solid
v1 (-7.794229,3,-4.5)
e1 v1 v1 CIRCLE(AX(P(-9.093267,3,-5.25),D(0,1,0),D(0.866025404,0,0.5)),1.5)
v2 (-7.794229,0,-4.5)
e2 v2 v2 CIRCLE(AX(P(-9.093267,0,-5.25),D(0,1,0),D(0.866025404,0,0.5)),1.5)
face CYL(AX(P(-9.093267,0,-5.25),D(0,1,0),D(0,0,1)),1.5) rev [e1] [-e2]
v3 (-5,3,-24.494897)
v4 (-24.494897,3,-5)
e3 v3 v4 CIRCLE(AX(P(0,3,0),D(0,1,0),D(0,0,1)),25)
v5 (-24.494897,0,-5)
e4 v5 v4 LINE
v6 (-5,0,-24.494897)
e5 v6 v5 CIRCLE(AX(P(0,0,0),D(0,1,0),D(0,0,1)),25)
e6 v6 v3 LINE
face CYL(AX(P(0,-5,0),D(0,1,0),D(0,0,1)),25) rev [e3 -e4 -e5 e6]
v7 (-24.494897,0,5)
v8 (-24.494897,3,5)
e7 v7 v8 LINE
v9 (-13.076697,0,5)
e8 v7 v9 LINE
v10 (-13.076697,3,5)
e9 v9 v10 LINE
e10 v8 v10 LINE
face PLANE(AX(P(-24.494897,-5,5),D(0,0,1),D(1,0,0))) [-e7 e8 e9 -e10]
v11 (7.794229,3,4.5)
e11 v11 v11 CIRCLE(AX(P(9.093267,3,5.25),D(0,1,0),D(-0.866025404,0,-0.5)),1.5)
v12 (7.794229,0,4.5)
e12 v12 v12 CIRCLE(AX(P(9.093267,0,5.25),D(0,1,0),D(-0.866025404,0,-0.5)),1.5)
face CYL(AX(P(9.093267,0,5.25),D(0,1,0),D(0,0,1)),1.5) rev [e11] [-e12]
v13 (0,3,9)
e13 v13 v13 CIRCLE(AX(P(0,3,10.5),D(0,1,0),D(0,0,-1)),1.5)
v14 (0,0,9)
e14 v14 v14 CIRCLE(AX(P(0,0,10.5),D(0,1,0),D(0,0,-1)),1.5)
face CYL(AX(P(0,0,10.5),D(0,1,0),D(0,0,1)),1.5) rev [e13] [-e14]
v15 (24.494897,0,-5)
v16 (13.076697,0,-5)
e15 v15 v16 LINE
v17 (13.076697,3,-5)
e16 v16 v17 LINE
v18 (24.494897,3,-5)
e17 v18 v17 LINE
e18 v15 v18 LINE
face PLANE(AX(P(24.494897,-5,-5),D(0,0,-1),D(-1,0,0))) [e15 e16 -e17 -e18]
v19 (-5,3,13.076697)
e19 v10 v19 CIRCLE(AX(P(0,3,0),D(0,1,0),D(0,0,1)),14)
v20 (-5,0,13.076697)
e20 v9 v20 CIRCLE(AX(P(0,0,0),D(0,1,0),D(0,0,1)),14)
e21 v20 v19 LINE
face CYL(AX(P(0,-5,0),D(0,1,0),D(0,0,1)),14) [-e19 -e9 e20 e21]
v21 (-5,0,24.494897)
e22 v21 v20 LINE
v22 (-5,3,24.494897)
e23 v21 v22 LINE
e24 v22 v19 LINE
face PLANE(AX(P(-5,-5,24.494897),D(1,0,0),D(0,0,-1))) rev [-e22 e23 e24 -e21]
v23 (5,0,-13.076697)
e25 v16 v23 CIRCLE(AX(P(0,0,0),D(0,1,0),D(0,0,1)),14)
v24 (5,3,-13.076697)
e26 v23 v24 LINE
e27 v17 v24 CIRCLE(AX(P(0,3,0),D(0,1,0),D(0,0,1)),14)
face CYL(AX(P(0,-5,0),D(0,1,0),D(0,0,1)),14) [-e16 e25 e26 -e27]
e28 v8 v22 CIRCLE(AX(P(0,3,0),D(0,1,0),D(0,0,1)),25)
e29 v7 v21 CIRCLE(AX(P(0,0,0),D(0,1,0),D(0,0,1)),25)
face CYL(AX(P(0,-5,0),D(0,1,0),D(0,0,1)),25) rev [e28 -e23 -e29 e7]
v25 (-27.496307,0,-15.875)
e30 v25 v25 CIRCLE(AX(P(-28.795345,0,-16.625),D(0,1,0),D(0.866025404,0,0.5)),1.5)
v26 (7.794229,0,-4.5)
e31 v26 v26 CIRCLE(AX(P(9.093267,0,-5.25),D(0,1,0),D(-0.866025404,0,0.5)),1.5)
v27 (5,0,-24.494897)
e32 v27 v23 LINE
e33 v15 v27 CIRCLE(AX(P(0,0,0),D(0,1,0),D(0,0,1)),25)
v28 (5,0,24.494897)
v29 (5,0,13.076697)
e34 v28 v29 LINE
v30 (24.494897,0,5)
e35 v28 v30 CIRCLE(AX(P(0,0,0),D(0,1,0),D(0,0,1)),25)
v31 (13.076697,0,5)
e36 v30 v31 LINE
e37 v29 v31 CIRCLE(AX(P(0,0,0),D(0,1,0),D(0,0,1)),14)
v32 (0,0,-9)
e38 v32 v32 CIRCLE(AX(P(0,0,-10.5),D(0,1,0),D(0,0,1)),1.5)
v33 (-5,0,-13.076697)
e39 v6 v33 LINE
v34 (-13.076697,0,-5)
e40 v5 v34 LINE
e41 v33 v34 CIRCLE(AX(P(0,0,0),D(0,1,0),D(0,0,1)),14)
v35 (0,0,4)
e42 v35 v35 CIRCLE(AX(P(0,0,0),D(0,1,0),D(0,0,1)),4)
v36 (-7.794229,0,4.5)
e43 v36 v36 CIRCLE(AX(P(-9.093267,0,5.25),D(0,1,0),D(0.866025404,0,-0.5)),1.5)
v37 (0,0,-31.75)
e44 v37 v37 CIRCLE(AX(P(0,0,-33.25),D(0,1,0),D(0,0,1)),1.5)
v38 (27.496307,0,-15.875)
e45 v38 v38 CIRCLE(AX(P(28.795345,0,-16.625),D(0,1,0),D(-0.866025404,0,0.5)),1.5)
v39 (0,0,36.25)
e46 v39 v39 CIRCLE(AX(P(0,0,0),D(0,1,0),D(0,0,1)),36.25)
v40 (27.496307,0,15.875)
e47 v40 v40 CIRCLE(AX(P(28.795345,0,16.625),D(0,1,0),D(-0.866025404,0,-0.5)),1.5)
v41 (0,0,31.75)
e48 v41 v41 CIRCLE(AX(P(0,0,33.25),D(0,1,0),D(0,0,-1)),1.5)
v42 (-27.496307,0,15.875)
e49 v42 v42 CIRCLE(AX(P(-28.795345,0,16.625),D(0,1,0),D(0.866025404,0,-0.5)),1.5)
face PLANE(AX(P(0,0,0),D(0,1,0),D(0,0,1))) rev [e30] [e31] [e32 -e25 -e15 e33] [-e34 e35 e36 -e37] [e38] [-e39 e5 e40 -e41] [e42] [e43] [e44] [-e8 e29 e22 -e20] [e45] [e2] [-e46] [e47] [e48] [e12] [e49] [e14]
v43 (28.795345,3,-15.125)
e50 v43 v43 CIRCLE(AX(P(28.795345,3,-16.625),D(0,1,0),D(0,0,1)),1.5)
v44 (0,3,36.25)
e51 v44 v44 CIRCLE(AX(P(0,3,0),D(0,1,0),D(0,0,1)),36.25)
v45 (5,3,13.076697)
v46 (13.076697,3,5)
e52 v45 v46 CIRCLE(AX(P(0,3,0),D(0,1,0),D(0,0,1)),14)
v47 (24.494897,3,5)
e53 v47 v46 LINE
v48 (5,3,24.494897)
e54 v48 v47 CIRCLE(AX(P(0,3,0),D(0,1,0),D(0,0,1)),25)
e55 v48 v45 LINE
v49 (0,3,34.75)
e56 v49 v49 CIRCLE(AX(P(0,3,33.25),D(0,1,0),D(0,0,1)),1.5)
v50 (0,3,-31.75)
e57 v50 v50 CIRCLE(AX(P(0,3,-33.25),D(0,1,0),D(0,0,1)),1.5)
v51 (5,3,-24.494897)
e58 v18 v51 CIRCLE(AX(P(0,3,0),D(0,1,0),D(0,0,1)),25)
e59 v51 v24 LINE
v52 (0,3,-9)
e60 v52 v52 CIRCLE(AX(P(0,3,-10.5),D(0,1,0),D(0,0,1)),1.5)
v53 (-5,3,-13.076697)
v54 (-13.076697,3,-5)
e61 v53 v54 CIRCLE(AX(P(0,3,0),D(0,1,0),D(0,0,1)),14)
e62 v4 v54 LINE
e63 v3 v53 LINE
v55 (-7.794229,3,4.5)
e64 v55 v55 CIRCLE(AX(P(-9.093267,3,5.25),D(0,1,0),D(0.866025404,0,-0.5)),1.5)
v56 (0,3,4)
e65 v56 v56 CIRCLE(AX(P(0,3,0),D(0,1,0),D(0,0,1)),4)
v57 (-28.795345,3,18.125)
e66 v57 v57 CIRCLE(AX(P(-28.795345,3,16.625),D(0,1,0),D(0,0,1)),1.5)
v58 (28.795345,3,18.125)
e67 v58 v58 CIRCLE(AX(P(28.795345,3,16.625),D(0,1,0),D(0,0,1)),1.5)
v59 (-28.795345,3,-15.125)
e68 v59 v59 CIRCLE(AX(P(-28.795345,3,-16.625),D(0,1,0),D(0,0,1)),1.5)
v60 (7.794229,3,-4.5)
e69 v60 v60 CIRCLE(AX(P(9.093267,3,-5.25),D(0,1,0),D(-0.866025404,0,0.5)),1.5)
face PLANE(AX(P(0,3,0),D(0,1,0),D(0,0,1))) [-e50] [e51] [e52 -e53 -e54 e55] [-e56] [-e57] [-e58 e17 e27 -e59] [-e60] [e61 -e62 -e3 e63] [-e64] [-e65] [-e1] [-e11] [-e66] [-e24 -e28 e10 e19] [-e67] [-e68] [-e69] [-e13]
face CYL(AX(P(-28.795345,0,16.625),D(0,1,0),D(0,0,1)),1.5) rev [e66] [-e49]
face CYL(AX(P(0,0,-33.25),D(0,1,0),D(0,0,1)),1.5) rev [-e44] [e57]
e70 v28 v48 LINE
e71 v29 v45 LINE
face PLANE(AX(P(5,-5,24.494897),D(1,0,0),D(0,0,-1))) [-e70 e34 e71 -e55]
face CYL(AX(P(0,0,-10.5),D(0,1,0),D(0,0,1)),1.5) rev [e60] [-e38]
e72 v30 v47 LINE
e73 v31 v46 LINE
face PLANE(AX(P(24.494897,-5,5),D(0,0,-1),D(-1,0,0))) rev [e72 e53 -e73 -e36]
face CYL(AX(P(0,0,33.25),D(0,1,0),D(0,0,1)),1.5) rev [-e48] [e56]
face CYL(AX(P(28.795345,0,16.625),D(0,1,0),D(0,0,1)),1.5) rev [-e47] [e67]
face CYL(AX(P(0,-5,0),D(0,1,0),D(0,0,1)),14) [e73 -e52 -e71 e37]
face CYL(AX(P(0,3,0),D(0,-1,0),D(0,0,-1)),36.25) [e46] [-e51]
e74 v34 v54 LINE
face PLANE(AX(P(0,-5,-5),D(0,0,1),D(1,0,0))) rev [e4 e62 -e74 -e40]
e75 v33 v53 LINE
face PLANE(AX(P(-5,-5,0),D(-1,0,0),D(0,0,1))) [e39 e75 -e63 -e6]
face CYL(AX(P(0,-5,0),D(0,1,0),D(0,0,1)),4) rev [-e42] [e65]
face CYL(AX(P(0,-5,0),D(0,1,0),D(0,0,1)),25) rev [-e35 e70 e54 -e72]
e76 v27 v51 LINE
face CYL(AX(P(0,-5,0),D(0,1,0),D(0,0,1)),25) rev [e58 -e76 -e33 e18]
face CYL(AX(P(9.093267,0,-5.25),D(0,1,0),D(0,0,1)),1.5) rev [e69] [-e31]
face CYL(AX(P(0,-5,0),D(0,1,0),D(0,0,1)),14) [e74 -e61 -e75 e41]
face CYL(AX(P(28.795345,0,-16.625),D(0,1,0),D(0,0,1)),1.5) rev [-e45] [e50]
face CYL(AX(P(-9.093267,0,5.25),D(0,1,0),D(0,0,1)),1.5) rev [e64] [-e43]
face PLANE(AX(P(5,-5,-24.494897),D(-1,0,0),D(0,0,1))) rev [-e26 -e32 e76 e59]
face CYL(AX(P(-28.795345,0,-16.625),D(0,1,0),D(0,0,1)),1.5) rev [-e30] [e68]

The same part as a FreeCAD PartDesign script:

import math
import FreeCAD as App
import Part
import Sketcher

V = App.Vector

doc = App.newDocument("Part")
body = doc.addObject("PartDesign::Body", "Body")

# Sketch on XZ plane
sketch1 = body.newObject("Sketcher::SketchObject", "Sketch")
sketch1.AttachmentSupport = (doc.getObject("XZ_Plane"), [""])
sketch1.MapMode = "FlatFace"
sketch1.addGeometry(Part.Circle(V(0, 0, 0), V(0, 0, 1), 36), False)
sketch1.addConstraint(Sketcher.Constraint("Coincident", 0, 3, -1, 1))
sketch1.addConstraint(Sketcher.Constraint("Diameter", 0, 72.5))
pad1 = body.newObject("PartDesign::Pad", "Pad")
pad1.Profile = sketch1
pad1.Length = 3
pad1.Reversed = True

# Sketch on XZ plane
sketch2 = body.newObject("Sketcher::SketchObject", "Sketch001")
sketch2.AttachmentSupport = (doc.getObject("XZ_Plane"), [""])
sketch2.MapMode = "FlatFace"
sketch2.AttachmentOffset = App.Placement(V(0, 0, -3), App.Rotation())
sketch2.addGeometry(Part.Circle(V(0, -33.2, 0), V(0, 0, 1), 1.5), False)
sketch2.addConstraint(Sketcher.Constraint("PointOnObject", 0, 3, -2))
sketch2.addConstraint(Sketcher.Constraint("Diameter", 0, 3.0))
sketch2.addConstraint(Sketcher.Constraint("DistanceY", 0, 3, -1, 1, 33.25))
pocket1 = body.newObject("PartDesign::Pocket", "Pocket")
pocket1.Profile = sketch2
pocket1.Length = 104.705891
pocket1.Midplane = True

# Sketch on XZ plane
sketch3 = body.newObject("Sketcher::SketchObject", "Sketch002")
sketch3.AttachmentSupport = (doc.getObject("XZ_Plane"), [""])
sketch3.MapMode = "FlatFace"
sketch3.AttachmentOffset = App.Placement(V(0, 0, -3), App.Rotation())
sketch3.addGeometry(Part.Circle(V(0, 0, 0), V(0, 0, 1), 4), False)
sketch3.addGeometry(Part.LineSegment(V(-5, -13.1, 0), V(-5, -24.5, 0)), False)
sketch3.addGeometry(Part.ArcOfCircle(Part.Circle(V(0, 0, 0), V(0, 0, 1), 25), math.radians(-168), math.radians(-102)), False)
sketch3.addGeometry(Part.LineSegment(V(-24.5, -5, 0), V(-13.1, -5, 0)), False)
sketch3.addGeometry(Part.ArcOfCircle(Part.Circle(V(0, 0, 0), V(0, 0, 1), 14), math.radians(-159), math.radians(-111)), False)
sketch3.addGeometry(Part.LineSegment(V(5, -24.5, 0), V(5, -13.1, 0)), False)
sketch3.addGeometry(Part.ArcOfCircle(Part.Circle(V(0, 0, 0), V(0, 0, 1), 14), math.radians(-69), math.radians(-21)), False)
sketch3.addGeometry(Part.LineSegment(V(13.1, -5, 0), V(24.5, -5, 0)), False)
sketch3.addGeometry(Part.ArcOfCircle(Part.Circle(V(0, 0, 0), V(0, 0, 1), 25), math.radians(-78), math.radians(-12)), False)
sketch3.addGeometry(Part.LineSegment(V(24.5, 5, 0), V(13.1, 5, 0)), False)
sketch3.addGeometry(Part.ArcOfCircle(Part.Circle(V(0, 0, 0), V(0, 0, 1), 14), math.radians(21), math.radians(69)), False)
sketch3.addGeometry(Part.LineSegment(V(5, 13.1, 0), V(5, 24.5, 0)), False)
sketch3.addGeometry(Part.ArcOfCircle(Part.Circle(V(0, 0, 0), V(0, 0, 1), 25), math.radians(12), math.radians(78)), False)
sketch3.addGeometry(Part.LineSegment(V(-5, 24.5, 0), V(-5, 13.1, 0)), False)
sketch3.addGeometry(Part.ArcOfCircle(Part.Circle(V(0, 0, 0), V(0, 0, 1), 14), math.radians(111), math.radians(159)), False)
sketch3.addGeometry(Part.LineSegment(V(-13.1, 5, 0), V(-24.5, 5, 0)), False)
sketch3.addGeometry(Part.ArcOfCircle(Part.Circle(V(0, 0, 0), V(0, 0, 1), 25), math.radians(102), math.radians(168)), False)
sketch3.addConstraint(Sketcher.Constraint("Coincident", 1, 2, 2, 2))
sketch3.addConstraint(Sketcher.Constraint("Coincident", 2, 1, 3, 1))
sketch3.addConstraint(Sketcher.Constraint("Coincident", 3, 2, 4, 1))
sketch3.addConstraint(Sketcher.Constraint("Coincident", 4, 2, 1, 1))
sketch3.addConstraint(Sketcher.Constraint("Coincident", 5, 2, 6, 1))
sketch3.addConstraint(Sketcher.Constraint("Coincident", 6, 2, 7, 1))
sketch3.addConstraint(Sketcher.Constraint("Coincident", 7, 2, 8, 2))
sketch3.addConstraint(Sketcher.Constraint("Coincident", 8, 1, 5, 1))
sketch3.addConstraint(Sketcher.Constraint("Coincident", 9, 2, 10, 1))
sketch3.addConstraint(Sketcher.Constraint("Coincident", 10, 2, 11, 1))
sketch3.addConstraint(Sketcher.Constraint("Coincident", 11, 2, 12, 2))
sketch3.addConstraint(Sketcher.Constraint("Coincident", 12, 1, 9, 1))
sketch3.addConstraint(Sketcher.Constraint("Coincident", 13, 2, 14, 1))
sketch3.addConstraint(Sketcher.Constraint("Coincident", 14, 2, 15, 1))
sketch3.addConstraint(Sketcher.Constraint("Coincident", 15, 2, 16, 2))
sketch3.addConstraint(Sketcher.Constraint("Coincident", 16, 1, 13, 1))
sketch3.addConstraint(Sketcher.Constraint("Vertical", 1))
sketch3.addConstraint(Sketcher.Constraint("Horizontal", 3))
sketch3.addConstraint(Sketcher.Constraint("Vertical", 5))
sketch3.addConstraint(Sketcher.Constraint("Horizontal", 7))
sketch3.addConstraint(Sketcher.Constraint("Horizontal", 9))
sketch3.addConstraint(Sketcher.Constraint("Vertical", 11))
sketch3.addConstraint(Sketcher.Constraint("Vertical", 13))
sketch3.addConstraint(Sketcher.Constraint("Horizontal", 15))
sketch3.addConstraint(Sketcher.Constraint("Coincident", 0, 3, -1, 1))
sketch3.addConstraint(Sketcher.Constraint("Coincident", 2, 3, -1, 1))
sketch3.addConstraint(Sketcher.Constraint("Coincident", 4, 3, -1, 1))
sketch3.addConstraint(Sketcher.Constraint("Coincident", 6, 3, -1, 1))
sketch3.addConstraint(Sketcher.Constraint("Coincident", 8, 3, -1, 1))
sketch3.addConstraint(Sketcher.Constraint("Coincident", 10, 3, -1, 1))
sketch3.addConstraint(Sketcher.Constraint("Coincident", 12, 3, -1, 1))
sketch3.addConstraint(Sketcher.Constraint("Coincident", 14, 3, -1, 1))
sketch3.addConstraint(Sketcher.Constraint("Coincident", 16, 3, -1, 1))
sketch3.addConstraint(Sketcher.Constraint("Equal", 4, 6))
sketch3.addConstraint(Sketcher.Constraint("Equal", 2, 8))
sketch3.addConstraint(Sketcher.Constraint("Equal", 6, 10))
sketch3.addConstraint(Sketcher.Constraint("Equal", 8, 12))
sketch3.addConstraint(Sketcher.Constraint("Equal", 10, 14))
sketch3.addConstraint(Sketcher.Constraint("Equal", 12, 16))
sketch3.addConstraint(Sketcher.Constraint("Horizontal", 4, 2, 5, 2))
sketch3.addConstraint(Sketcher.Constraint("Horizontal", 3, 2, 6, 2))
sketch3.addConstraint(Sketcher.Constraint("Horizontal", 10, 2, 13, 2))
sketch3.addConstraint(Sketcher.Constraint("Horizontal", 12, 1, 14, 2))
sketch3.addConstraint(Sketcher.Constraint("Vertical", 6, 2, 9, 2))
sketch3.addConstraint(Sketcher.Constraint("Vertical", 8, 1, 10, 2))
sketch3.addConstraint(Sketcher.Constraint("Equal", 15, 1))
sketch3.addConstraint(Sketcher.Constraint("Diameter", 0, 8.0))
sketch3.addConstraint(Sketcher.Constraint("Radius", 2, 25.0))
sketch3.addConstraint(Sketcher.Constraint("Radius", 4, 14.0))
sketch3.addConstraint(Sketcher.Constraint("DistanceX", 1, 2, -1, 1, 5.0))
pocket2 = body.newObject("PartDesign::Pocket", "Pocket001")
pocket2.Profile = sketch3
pocket2.Length = 8
pocket2.Reversed = True
doc.recompute()

polarpattern = body.newObject("PartDesign::PolarPattern", "PolarPattern")
polarpattern.Originals = [pocket1]
polarpattern.Axis = (doc.getObject("Y_Axis"), [""])
polarpattern.Angle = 360
polarpattern.Occurrences = 6
body.Tip = polarpattern

# Sketch on XZ plane
sketch4 = body.newObject("Sketcher::SketchObject", "Sketch003")
sketch4.AttachmentSupport = (doc.getObject("XZ_Plane"), [""])
sketch4.MapMode = "FlatFace"
sketch4.AttachmentOffset = App.Placement(V(0, 0, -3), App.Rotation())
sketch4.addGeometry(Part.Circle(V(0, -10.5, 0), V(0, 0, 1), 1.5), False)
sketch4.addConstraint(Sketcher.Constraint("PointOnObject", 0, 3, -2))
sketch4.addConstraint(Sketcher.Constraint("Diameter", 0, 3.0))
sketch4.addConstraint(Sketcher.Constraint("DistanceY", 0, 3, -1, 1, 10.5))
pocket3 = body.newObject("PartDesign::Pocket", "Pocket002")
pocket3.Profile = sketch4
pocket3.Type = "ThroughAll"
pocket3.Reversed = True
doc.recompute()

polarpattern2 = body.newObject("PartDesign::PolarPattern", "PolarPattern001")
polarpattern2.Originals = [pocket3]
polarpattern2.Axis = (doc.getObject("Y_Axis"), [""])
polarpattern2.Angle = 360
polarpattern2.Occurrences = 6
body.Tip = polarpattern2

doc.recompute()
